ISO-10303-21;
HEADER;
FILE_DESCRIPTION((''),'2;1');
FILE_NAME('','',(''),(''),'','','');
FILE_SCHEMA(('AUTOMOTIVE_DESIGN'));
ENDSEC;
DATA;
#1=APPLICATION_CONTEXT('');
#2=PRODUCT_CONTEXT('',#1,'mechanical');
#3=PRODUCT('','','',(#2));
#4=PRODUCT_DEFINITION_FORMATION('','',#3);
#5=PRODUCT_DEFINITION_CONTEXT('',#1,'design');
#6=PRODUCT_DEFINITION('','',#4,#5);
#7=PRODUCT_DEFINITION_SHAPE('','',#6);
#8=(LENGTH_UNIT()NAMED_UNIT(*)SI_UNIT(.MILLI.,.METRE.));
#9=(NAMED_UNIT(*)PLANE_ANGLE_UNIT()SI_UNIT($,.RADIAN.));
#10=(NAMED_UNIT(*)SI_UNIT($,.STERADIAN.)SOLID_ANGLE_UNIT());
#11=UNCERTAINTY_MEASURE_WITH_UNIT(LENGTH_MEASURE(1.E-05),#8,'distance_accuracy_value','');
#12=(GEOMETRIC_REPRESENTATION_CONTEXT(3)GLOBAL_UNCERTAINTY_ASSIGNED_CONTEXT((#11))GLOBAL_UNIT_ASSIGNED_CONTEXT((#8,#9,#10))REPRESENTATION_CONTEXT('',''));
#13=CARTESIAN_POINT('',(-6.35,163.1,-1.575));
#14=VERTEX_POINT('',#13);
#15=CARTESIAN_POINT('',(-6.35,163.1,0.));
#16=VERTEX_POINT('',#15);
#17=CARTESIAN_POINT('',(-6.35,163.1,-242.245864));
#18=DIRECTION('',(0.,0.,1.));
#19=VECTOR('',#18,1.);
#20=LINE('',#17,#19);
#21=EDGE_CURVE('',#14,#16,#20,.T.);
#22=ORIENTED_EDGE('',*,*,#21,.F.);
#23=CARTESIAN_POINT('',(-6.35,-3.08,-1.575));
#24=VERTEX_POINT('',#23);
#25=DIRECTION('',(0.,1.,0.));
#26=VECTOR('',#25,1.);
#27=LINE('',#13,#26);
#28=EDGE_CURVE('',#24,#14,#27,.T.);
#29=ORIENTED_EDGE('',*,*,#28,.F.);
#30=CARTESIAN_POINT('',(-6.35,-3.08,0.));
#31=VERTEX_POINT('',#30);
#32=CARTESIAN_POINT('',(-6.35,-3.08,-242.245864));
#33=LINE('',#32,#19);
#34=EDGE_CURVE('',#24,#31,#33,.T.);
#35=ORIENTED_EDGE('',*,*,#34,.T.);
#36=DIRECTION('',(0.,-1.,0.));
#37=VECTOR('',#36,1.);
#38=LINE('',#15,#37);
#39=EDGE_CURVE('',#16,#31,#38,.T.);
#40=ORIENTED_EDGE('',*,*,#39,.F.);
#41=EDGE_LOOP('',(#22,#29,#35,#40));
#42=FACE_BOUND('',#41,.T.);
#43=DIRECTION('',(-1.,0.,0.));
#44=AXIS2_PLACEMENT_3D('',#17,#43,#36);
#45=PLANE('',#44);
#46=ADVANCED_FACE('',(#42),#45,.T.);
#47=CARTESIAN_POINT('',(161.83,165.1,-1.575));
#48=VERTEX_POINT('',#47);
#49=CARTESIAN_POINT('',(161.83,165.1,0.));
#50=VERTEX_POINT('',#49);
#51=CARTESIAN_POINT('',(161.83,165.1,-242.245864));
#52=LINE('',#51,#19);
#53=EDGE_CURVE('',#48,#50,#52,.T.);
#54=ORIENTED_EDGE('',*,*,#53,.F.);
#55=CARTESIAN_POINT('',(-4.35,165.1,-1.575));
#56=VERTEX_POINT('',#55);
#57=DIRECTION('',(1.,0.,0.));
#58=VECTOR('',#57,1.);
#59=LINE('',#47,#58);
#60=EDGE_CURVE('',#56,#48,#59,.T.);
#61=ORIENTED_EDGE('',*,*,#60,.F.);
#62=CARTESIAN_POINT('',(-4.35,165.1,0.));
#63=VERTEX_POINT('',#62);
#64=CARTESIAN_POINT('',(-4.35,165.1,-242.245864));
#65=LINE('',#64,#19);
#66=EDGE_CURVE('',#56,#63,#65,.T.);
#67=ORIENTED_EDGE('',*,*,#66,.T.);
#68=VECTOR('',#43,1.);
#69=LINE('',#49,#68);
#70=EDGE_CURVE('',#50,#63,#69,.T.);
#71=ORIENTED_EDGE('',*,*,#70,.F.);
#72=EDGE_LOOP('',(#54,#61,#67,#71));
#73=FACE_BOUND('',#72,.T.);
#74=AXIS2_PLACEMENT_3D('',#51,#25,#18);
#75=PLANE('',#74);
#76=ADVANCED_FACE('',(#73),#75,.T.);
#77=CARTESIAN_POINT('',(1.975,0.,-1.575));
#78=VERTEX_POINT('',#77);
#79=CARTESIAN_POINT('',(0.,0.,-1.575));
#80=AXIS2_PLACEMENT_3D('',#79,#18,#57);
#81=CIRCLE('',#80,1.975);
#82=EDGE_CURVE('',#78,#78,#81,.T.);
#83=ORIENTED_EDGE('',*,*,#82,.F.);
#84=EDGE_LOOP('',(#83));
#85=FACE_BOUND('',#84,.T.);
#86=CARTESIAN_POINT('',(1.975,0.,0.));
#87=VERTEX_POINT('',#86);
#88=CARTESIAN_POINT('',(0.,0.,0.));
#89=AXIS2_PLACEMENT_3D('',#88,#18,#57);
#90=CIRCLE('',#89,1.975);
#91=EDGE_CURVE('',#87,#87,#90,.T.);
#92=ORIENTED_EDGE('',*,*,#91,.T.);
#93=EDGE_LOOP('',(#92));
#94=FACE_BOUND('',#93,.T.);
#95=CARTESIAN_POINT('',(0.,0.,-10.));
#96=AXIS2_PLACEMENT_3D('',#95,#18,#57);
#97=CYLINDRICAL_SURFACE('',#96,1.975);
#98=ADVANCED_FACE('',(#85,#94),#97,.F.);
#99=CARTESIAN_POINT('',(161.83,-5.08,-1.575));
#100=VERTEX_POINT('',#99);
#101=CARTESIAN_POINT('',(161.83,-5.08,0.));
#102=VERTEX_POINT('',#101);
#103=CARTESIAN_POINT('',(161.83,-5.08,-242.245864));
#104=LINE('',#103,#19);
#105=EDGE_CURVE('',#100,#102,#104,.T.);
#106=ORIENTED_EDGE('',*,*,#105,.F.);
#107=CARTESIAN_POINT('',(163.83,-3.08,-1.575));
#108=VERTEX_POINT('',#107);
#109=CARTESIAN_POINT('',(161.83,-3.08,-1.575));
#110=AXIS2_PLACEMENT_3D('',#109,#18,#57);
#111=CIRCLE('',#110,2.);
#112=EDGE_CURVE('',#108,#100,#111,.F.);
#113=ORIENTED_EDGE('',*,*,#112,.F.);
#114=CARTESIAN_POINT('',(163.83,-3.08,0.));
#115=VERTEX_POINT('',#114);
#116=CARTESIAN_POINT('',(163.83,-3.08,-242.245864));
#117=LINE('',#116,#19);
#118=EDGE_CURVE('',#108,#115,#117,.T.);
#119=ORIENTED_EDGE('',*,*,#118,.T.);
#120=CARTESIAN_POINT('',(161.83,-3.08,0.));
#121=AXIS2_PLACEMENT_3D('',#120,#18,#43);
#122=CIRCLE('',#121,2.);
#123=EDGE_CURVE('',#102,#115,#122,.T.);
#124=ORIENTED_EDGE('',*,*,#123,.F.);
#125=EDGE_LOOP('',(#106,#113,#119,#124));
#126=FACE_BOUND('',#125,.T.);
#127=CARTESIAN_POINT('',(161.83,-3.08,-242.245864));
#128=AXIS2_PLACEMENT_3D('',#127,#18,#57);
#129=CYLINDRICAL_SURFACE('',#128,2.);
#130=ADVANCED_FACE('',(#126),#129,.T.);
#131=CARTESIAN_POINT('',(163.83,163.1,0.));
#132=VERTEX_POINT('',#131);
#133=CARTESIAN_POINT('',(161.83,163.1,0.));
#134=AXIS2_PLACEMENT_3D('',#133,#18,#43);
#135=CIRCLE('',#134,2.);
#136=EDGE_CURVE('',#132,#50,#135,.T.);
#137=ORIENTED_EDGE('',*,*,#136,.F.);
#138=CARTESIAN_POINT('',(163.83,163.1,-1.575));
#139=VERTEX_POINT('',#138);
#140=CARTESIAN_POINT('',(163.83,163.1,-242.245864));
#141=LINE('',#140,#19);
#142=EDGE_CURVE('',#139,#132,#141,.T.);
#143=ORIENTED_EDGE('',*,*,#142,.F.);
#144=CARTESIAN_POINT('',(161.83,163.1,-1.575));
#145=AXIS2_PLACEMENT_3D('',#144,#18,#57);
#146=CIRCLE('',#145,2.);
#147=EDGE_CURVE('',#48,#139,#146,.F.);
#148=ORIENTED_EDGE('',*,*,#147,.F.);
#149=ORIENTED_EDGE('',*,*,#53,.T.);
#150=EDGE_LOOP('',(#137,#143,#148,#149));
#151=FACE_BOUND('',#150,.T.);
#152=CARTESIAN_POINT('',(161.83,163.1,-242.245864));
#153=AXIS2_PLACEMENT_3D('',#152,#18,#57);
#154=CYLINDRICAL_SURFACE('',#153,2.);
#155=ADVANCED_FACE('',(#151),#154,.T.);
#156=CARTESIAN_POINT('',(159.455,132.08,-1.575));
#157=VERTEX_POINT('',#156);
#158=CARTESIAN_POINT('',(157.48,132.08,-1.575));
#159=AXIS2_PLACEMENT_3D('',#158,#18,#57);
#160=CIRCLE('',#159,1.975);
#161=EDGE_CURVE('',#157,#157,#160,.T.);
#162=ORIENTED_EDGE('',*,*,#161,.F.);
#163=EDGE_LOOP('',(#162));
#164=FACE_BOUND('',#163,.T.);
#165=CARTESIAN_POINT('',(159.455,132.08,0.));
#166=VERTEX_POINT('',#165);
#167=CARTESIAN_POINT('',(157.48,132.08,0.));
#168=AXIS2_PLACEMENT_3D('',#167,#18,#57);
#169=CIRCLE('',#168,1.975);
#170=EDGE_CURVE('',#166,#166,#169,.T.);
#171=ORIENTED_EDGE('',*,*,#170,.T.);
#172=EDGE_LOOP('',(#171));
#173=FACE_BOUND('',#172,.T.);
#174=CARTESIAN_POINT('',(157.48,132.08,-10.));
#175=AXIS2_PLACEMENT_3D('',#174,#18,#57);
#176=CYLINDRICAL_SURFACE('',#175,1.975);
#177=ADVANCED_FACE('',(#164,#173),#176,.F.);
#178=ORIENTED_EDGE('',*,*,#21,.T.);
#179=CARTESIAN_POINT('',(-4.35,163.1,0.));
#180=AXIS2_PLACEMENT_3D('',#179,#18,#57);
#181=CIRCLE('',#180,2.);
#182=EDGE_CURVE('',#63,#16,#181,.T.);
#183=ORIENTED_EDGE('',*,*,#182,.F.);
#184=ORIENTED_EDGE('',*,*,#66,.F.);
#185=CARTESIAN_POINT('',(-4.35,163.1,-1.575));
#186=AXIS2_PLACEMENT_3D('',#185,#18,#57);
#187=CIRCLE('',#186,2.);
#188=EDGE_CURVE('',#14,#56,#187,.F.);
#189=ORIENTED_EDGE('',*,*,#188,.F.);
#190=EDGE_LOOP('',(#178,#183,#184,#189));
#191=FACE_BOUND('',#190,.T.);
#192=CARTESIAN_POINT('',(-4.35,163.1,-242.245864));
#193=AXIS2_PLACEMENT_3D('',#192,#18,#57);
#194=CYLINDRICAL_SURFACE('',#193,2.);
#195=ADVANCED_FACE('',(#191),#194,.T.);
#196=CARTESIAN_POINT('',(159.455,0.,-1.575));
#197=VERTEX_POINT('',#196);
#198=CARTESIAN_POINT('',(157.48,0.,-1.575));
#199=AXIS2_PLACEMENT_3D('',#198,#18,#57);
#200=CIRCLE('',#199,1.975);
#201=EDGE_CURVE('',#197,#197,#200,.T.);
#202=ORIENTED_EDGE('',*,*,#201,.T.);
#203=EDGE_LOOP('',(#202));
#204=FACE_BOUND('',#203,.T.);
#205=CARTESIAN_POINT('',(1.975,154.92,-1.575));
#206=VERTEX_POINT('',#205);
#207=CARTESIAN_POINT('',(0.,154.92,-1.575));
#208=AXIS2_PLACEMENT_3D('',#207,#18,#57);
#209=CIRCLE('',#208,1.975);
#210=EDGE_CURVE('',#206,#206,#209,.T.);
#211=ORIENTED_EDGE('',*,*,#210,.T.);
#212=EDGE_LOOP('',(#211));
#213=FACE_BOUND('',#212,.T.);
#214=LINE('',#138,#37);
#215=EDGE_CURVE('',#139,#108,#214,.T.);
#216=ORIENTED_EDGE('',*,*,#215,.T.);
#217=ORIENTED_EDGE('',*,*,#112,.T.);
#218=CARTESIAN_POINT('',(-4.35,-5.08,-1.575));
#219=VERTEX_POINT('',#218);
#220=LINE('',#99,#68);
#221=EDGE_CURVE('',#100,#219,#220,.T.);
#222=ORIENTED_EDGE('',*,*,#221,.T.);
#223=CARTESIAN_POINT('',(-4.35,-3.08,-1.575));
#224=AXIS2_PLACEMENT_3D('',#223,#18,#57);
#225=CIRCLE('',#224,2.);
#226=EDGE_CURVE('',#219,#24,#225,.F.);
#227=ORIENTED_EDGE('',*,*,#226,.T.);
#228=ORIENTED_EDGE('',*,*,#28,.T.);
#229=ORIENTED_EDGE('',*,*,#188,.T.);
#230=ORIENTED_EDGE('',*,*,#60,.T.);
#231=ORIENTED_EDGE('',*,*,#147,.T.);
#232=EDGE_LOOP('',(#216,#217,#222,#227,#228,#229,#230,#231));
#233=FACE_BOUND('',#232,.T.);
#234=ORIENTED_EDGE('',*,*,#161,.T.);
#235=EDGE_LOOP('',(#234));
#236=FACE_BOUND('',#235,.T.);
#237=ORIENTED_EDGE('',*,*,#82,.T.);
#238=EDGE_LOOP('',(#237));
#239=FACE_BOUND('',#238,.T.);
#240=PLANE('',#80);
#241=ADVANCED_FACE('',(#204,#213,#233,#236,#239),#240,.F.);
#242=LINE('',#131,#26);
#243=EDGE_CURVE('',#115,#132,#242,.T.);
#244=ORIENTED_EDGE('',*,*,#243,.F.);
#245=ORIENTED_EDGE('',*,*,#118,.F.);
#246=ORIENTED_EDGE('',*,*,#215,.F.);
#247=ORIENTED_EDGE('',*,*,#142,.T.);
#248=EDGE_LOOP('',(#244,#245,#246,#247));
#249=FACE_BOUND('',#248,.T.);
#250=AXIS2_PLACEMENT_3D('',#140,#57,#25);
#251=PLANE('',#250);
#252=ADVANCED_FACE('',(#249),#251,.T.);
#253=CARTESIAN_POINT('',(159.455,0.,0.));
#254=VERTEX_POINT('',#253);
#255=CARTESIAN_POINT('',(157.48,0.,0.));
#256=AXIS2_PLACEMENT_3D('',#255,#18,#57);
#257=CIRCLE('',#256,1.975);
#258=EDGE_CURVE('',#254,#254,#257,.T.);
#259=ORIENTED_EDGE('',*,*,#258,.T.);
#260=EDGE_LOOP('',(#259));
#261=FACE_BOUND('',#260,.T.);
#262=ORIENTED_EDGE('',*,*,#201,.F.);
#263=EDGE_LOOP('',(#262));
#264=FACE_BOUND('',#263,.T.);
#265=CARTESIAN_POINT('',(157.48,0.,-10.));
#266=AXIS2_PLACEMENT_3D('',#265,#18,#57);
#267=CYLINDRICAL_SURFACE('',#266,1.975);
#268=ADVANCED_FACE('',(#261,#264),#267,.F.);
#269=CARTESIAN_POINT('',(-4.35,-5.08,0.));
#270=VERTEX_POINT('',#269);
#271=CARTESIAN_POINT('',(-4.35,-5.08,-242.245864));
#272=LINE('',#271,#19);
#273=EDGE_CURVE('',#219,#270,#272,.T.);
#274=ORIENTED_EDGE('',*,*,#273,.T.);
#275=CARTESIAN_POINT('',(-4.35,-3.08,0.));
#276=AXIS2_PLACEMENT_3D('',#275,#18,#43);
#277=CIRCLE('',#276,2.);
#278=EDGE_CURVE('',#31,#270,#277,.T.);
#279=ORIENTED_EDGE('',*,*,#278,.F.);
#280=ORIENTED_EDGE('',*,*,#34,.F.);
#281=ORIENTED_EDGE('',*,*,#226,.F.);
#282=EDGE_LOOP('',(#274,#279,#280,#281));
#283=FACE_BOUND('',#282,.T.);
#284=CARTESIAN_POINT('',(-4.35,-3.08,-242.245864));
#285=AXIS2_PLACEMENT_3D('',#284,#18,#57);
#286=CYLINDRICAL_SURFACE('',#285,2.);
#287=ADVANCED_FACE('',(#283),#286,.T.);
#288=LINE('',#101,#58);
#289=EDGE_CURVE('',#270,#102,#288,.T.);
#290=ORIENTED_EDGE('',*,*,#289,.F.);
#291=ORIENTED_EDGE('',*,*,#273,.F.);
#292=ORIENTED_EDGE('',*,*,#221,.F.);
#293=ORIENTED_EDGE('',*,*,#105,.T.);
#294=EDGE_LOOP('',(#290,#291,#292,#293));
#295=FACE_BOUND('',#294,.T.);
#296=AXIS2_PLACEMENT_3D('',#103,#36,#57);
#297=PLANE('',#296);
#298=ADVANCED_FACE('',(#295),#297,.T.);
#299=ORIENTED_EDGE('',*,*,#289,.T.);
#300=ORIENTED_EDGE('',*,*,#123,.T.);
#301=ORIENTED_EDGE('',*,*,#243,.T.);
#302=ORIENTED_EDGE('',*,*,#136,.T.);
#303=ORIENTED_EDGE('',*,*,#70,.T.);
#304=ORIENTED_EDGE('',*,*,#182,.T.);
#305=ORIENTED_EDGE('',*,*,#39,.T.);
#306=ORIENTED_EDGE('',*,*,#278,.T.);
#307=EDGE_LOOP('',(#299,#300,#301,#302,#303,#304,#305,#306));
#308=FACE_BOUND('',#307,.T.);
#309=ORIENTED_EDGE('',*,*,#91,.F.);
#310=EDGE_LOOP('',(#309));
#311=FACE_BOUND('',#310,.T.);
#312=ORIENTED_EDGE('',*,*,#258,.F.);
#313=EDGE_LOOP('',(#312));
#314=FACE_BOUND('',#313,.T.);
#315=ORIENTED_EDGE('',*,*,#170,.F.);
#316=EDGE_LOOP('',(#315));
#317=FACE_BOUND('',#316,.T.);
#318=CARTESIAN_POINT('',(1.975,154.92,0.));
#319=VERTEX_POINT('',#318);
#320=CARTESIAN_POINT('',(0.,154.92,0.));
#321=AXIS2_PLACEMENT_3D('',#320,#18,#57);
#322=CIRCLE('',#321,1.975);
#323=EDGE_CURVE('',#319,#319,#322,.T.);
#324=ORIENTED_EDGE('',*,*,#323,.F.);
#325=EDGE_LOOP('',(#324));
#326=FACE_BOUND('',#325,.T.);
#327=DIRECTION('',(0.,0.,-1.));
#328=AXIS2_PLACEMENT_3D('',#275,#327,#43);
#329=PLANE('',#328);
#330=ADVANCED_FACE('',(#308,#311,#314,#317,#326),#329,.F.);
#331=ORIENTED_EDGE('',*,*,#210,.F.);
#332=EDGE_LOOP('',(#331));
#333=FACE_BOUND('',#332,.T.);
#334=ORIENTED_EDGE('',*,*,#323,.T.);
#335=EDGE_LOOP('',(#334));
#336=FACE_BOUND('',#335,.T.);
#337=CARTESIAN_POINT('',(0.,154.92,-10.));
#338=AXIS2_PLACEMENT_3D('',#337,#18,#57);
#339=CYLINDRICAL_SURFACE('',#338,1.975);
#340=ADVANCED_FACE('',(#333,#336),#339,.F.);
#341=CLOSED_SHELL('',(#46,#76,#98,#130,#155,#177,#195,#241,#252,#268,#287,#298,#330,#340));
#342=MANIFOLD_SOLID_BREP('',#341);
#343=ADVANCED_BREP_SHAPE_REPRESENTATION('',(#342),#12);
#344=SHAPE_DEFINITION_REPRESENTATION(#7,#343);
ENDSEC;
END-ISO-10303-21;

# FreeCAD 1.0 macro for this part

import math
import FreeCAD as App
import Part
import Sketcher
Q = App.Units.Quantity

doc = App.newDocument("Part")
body = doc.addObject("PartDesign::Body", "Body")

# Sketch on XY plane
sketch1 = body.newObject("Sketcher::SketchObject", "Sketch")
sketch1.AttachmentSupport = (doc.getObject("XY_Plane"), [""])
sketch1.MapMode = "FlatFace"
sketch1.addGeometry([
    Part.LineSegment(App.Vector(161.8, 165.1, 0), App.Vector(-4.3, 165.1, 0)),  # 0
    Part.ArcOfCircle(Part.Circle(App.Vector(-4.3, 163.1, 0), App.Vector(0, 0, 1), 2), math.radians(90), math.radians(180)),  # 1
    Part.LineSegment(App.Vector(-6.3, 163.1, 0), App.Vector(-6.3, -3.1, 0)),  # 2
    Part.ArcOfCircle(Part.Circle(App.Vector(-4.3, -3.1, 0), App.Vector(0, 0, 1), 2), math.radians(-180), math.radians(-90)),  # 3
    Part.LineSegment(App.Vector(-4.3, -5.1, 0), App.Vector(161.8, -5.1, 0)),  # 4
    Part.ArcOfCircle(Part.Circle(App.Vector(161.8, -3.1, 0), App.Vector(0, 0, 1), 2), math.radians(-90), math.radians(0)),  # 5
    Part.LineSegment(App.Vector(163.8, -3.1, 0), App.Vector(163.8, 163.1, 0)),  # 6
    Part.ArcOfCircle(Part.Circle(App.Vector(161.8, 163.1, 0), App.Vector(0, 0, 1), 2), math.radians(0), math.radians(90)),  # 7
], False)
sketch1.addConstraint([
    Sketcher.Constraint("Tangent", 0, 2, 1, 1),
    Sketcher.Constraint("Tangent", 1, 2, 2, 1),
    Sketcher.Constraint("Tangent", 2, 2, 3, 1),
    Sketcher.Constraint("Tangent", 3, 2, 4, 1),
    Sketcher.Constraint("Tangent", 4, 2, 5, 1),
    Sketcher.Constraint("Tangent", 5, 2, 6, 1),
    Sketcher.Constraint("Tangent", 6, 2, 7, 1),
    Sketcher.Constraint("Tangent", 7, 2, 0, 1),
    Sketcher.Constraint("Horizontal", 0),
    Sketcher.Constraint("Vertical", 2),
    Sketcher.Constraint("Horizontal", 4),
    Sketcher.Constraint("Vertical", 6),
    Sketcher.Constraint("Equal", 1, 3),
    Sketcher.Constraint("Equal", 3, 5),
    Sketcher.Constraint("Equal", 5, 7),
    Sketcher.Constraint("Equal", 4, 2),
    Sketcher.Constraint("Radius", 1, Q("2 mm")),
    Sketcher.Constraint("DistanceX", 0, 2, 0, 1, Q("166.18 mm")),
    Sketcher.Constraint("DistanceY", -1, 1, 1, 3, Q("163.1 mm")),
    Sketcher.Constraint("DistanceX", 1, 3, -1, 1, Q("4.35 mm")),
])
pad1 = body.newObject("PartDesign::Pad", "Pad")
pad1.Profile = sketch1
pad1.Length = 1.575
pad1.Reversed = True

# Sketch on XY plane
sketch2 = body.newObject("Sketcher::SketchObject", "Sketch001")
sketch2.AttachmentSupport = (doc.getObject("XY_Plane"), [""])
sketch2.MapMode = "FlatFace"
sketch2.addGeometry([
    Part.Circle(App.Vector(0, 0, 0), App.Vector(0, 0, 1), 2),
    Part.Circle(App.Vector(157.5, 0, 0), App.Vector(0, 0, 1), 2),
    Part.Circle(App.Vector(157.5, 132.1, 0), App.Vector(0, 0, 1), 2),
    Part.Circle(App.Vector(0, 154.9, 0), App.Vector(0, 0, 1), 2),
], False)
sketch2.addConstraint([
    Sketcher.Constraint("Coincident", 0, 3, -1, 1),
    Sketcher.Constraint("Equal", 0, 1),
    Sketcher.Constraint("Equal", 1, 2),
    Sketcher.Constraint("Equal", 2, 3),
    Sketcher.Constraint("PointOnObject", 1, 3, -1),
    Sketcher.Constraint("PointOnObject", 3, 3, -2),
    Sketcher.Constraint("Vertical", 1, 3, 2, 3),
    Sketcher.Constraint("Diameter", 0, Q("3.95 mm")),
    Sketcher.Constraint("DistanceX", -1, 1, 1, 3, Q("157.48 mm")),
    Sketcher.Constraint("DistanceY", -1, 1, 2, 3, Q("132.08 mm")),
    Sketcher.Constraint("DistanceY", -1, 1, 3, 3, Q("154.92 mm")),
])
pocket1 = body.newObject("PartDesign::Pocket", "Pocket")
pocket1.Profile = sketch2
pocket1.Length = 10

doc.recompute()
